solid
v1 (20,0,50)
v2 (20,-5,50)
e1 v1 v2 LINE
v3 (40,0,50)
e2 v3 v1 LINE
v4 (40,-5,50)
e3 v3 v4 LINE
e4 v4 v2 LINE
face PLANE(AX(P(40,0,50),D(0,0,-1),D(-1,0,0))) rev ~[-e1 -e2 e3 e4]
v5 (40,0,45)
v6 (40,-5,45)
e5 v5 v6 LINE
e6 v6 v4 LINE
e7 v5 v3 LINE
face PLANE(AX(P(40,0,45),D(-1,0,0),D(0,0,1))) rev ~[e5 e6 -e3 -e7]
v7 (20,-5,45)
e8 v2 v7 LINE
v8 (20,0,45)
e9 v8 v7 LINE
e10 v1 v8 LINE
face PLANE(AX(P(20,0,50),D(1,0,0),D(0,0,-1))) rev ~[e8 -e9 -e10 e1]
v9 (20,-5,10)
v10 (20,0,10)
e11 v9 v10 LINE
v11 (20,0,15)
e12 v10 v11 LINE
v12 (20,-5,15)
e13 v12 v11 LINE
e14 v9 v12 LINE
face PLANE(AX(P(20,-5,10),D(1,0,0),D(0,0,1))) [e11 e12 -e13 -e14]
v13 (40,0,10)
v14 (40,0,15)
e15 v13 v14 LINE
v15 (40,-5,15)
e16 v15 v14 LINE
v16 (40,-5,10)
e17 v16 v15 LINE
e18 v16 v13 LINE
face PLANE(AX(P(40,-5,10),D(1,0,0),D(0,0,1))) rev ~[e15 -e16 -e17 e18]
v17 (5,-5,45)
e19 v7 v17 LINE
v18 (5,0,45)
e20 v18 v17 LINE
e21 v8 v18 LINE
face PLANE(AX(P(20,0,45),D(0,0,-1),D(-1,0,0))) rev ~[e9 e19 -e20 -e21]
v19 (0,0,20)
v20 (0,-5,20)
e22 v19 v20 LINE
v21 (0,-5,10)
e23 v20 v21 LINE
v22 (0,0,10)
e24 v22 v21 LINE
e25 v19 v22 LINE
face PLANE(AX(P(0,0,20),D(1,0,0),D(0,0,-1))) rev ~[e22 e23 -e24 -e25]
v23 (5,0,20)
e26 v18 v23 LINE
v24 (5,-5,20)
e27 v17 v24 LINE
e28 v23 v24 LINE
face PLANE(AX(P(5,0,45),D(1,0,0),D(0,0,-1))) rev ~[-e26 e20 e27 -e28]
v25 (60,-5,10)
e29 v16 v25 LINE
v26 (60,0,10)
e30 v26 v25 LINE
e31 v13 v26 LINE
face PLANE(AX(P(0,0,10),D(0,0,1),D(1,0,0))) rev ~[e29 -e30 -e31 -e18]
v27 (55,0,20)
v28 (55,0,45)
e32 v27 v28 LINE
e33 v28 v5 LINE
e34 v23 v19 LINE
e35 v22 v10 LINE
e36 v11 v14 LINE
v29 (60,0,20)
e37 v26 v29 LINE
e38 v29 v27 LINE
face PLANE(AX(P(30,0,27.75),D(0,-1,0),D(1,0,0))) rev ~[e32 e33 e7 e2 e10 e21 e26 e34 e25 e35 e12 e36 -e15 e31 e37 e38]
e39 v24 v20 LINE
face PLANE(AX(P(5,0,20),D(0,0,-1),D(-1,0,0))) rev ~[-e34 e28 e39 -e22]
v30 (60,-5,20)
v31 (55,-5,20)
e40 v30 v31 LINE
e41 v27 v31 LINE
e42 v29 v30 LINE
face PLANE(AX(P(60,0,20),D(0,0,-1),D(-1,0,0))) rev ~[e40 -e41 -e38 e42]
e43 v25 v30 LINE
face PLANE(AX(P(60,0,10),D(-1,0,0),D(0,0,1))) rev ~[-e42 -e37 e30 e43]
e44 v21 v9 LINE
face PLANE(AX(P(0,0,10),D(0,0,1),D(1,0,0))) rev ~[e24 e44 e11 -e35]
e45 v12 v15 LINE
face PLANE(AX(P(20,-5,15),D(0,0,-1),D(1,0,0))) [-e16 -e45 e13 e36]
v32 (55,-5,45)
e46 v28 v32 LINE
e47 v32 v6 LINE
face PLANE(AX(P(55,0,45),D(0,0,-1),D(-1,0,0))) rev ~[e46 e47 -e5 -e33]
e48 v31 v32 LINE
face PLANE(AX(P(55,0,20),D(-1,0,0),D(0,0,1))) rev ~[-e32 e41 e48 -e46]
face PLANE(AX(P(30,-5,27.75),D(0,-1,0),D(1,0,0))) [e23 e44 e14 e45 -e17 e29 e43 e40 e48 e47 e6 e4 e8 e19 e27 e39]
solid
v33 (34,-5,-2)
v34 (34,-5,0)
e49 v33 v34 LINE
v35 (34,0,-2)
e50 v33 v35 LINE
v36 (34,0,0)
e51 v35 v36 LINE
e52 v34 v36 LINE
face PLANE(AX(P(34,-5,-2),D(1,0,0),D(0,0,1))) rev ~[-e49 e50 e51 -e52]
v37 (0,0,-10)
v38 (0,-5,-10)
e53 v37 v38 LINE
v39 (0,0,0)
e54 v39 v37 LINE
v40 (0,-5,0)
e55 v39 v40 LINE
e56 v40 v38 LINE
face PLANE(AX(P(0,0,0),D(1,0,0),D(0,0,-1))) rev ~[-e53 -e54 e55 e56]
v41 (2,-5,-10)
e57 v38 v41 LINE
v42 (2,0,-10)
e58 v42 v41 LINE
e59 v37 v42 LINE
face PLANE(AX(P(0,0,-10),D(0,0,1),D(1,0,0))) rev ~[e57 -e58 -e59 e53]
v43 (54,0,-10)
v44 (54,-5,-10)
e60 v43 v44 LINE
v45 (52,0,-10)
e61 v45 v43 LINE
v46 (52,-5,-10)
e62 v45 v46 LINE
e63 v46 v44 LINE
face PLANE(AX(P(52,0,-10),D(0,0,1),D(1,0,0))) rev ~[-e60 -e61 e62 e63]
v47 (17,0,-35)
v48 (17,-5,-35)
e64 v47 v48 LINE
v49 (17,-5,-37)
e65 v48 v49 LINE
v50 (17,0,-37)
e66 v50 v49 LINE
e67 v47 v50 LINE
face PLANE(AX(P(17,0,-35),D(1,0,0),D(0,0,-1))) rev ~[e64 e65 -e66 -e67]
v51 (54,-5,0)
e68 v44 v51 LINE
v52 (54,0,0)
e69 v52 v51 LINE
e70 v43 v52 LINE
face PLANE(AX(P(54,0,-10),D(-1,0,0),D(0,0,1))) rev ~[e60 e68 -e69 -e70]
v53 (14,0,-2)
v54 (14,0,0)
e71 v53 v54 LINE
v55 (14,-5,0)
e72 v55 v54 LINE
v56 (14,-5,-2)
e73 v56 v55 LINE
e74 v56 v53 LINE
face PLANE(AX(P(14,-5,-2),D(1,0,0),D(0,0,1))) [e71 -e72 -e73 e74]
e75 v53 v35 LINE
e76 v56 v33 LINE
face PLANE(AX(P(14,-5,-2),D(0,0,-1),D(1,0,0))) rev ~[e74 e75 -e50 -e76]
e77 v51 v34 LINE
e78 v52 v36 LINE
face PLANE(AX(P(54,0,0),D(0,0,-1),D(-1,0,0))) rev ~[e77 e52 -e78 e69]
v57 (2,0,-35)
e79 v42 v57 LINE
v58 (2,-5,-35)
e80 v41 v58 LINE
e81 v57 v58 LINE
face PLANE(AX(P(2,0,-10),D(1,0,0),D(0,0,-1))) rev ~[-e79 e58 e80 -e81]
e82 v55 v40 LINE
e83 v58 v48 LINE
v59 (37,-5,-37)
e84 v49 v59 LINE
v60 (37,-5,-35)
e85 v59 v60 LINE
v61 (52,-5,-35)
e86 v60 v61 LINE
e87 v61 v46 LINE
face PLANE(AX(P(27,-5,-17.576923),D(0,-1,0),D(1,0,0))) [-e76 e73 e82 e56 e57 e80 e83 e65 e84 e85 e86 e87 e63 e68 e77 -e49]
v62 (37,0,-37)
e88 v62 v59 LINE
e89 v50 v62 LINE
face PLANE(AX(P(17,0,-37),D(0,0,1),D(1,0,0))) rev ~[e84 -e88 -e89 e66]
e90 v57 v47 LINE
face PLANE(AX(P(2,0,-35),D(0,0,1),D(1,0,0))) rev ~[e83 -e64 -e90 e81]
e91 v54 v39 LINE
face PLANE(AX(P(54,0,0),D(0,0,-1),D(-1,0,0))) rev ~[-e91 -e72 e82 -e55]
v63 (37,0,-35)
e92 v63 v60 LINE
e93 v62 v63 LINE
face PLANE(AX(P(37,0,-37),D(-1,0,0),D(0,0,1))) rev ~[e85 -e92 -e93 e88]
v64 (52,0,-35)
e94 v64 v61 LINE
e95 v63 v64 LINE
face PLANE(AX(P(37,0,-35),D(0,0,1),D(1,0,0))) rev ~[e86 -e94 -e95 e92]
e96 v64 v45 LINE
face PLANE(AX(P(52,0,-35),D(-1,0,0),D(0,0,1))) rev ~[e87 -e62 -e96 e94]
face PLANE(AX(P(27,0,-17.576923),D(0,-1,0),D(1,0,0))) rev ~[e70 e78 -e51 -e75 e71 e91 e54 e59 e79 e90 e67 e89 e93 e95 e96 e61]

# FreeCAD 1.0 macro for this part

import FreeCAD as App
import Part
import Sketcher
Q = App.Units.Quantity

doc = App.newDocument("Part")
params = doc.addObject("Spreadsheet::Sheet", "Params")
for row, (alias, value) in enumerate([
    ("sketch1_width", "60 mm"),
    ("sketch1_width2", "5 mm"),
    ("sketch1_width3", "15 mm"),
    ("sketch1_width4", "54 mm"),
    ("sketch1_height", "10 mm"),
    ("pad1_length", "5 mm"),
    ("sketch2_width", "20 mm"),
    ("sketch2_height", "2 mm"),
    ("pocket1_length", "5 mm"),
    ("sketch3_width", "20 mm"),
    ("sketch3_height", "5 mm"),
    ("pocket2_length", "5 mm"),
], start=1):
    params.set(f"A{row}", alias)
    params.set(f"B{row}", "=" + value)
    params.setAlias(f"B{row}", alias)

body = doc.addObject("PartDesign::Body", "Body")
body.AllowCompound = True

sketch1 = body.newObject("Sketcher::SketchObject", "Sketch")
sketch1.AttachmentSupport = (doc.getObject("XZ_Plane"), [""])
sketch1.MapMode = "FlatFace"
sketch1.addGeometry(Part.LineSegment(App.Vector(0, 20, 0), App.Vector(0, 10, 0)), False)
sketch1.addGeometry(Part.LineSegment(App.Vector(0, 10, 0), App.Vector(60, 10, 0)), False)
sketch1.addGeometry(Part.LineSegment(App.Vector(60, 10, 0), App.Vector(60, 20, 0)), False)
sketch1.addGeometry(Part.LineSegment(App.Vector(60, 20, 0), App.Vector(55, 20, 0)), False)
sketch1.addGeometry(Part.LineSegment(App.Vector(55, 20, 0), App.Vector(55, 45, 0)), False)
sketch1.addGeometry(Part.LineSegment(App.Vector(55, 45, 0), App.Vector(40, 45, 0)), False)
sketch1.addGeometry(Part.LineSegment(App.Vector(40, 45, 0), App.Vector(40, 50, 0)), False)
sketch1.addGeometry(Part.LineSegment(App.Vector(40, 50, 0), App.Vector(20, 50, 0)), False)
sketch1.addGeometry(Part.LineSegment(App.Vector(20, 50, 0), App.Vector(20, 45, 0)), False)
sketch1.addGeometry(Part.LineSegment(App.Vector(20, 45, 0), App.Vector(5, 45, 0)), False)
sketch1.addGeometry(Part.LineSegment(App.Vector(5, 45, 0), App.Vector(5, 20, 0)), False)
sketch1.addGeometry(Part.LineSegment(App.Vector(5, 20, 0), App.Vector(0, 20, 0)), False)
sketch1.addGeometry(Part.LineSegment(App.Vector(54, 0, 0), App.Vector(0, 0, 0)), False)
sketch1.addGeometry(Part.LineSegment(App.Vector(0, 0, 0), App.Vector(0, -10, 0)), False)
sketch1.addGeometry(Part.LineSegment(App.Vector(0, -10, 0), App.Vector(2, -10, 0)), False)
sketch1.addGeometry(Part.LineSegment(App.Vector(2, -10, 0), App.Vector(2, -35, 0)), False)
sketch1.addGeometry(Part.LineSegment(App.Vector(2, -35, 0), App.Vector(17, -35, 0)), False)
sketch1.addGeometry(Part.LineSegment(App.Vector(17, -35, 0), App.Vector(17, -37, 0)), False)
sketch1.addGeometry(Part.LineSegment(App.Vector(17, -37, 0), App.Vector(37, -37, 0)), False)
sketch1.addGeometry(Part.LineSegment(App.Vector(37, -37, 0), App.Vector(37, -35, 0)), False)
sketch1.addGeometry(Part.LineSegment(App.Vector(37, -35, 0), App.Vector(52, -35, 0)), False)
sketch1.addGeometry(Part.LineSegment(App.Vector(52, -35, 0), App.Vector(52, -10, 0)), False)
sketch1.addGeometry(Part.LineSegment(App.Vector(52, -10, 0), App.Vector(54, -10, 0)), False)
sketch1.addGeometry(Part.LineSegment(App.Vector(54, -10, 0), App.Vector(54, 0, 0)), False)
sketch1.addConstraint(Sketcher.Constraint("Coincident", 0, 2, 1, 1))
sketch1.addConstraint(Sketcher.Constraint("Coincident", 1, 2, 2, 1))
sketch1.addConstraint(Sketcher.Constraint("Coincident", 2, 2, 3, 1))
sketch1.addConstraint(Sketcher.Constraint("Coincident", 3, 2, 4, 1))
sketch1.addConstraint(Sketcher.Constraint("Coincident", 4, 2, 5, 1))
sketch1.addConstraint(Sketcher.Constraint("Coincident", 5, 2, 6, 1))
sketch1.addConstraint(Sketcher.Constraint("Coincident", 6, 2, 7, 1))
sketch1.addConstraint(Sketcher.Constraint("Coincident", 7, 2, 8, 1))
sketch1.addConstraint(Sketcher.Constraint("Coincident", 8, 2, 9, 1))
sketch1.addConstraint(Sketcher.Constraint("Coincident", 9, 2, 10, 1))
sketch1.addConstraint(Sketcher.Constraint("Coincident", 10, 2, 11, 1))
sketch1.addConstraint(Sketcher.Constraint("Coincident", 11, 2, 0, 1))
sketch1.addConstraint(Sketcher.Constraint("Coincident", 12, 2, 13, 1))
sketch1.addConstraint(Sketcher.Constraint("Coincident", 13, 2, 14, 1))
sketch1.addConstraint(Sketcher.Constraint("Coincident", 14, 2, 15, 1))
sketch1.addConstraint(Sketcher.Constraint("Coincident", 15, 2, 16, 1))
sketch1.addConstraint(Sketcher.Constraint("Coincident", 16, 2, 17, 1))
sketch1.addConstraint(Sketcher.Constraint("Coincident", 17, 2, 18, 1))
sketch1.addConstraint(Sketcher.Constraint("Coincident", 18, 2, 19, 1))
sketch1.addConstraint(Sketcher.Constraint("Coincident", 19, 2, 20, 1))
sketch1.addConstraint(Sketcher.Constraint("Coincident", 20, 2, 21, 1))
sketch1.addConstraint(Sketcher.Constraint("Coincident", 21, 2, 22, 1))
sketch1.addConstraint(Sketcher.Constraint("Coincident", 22, 2, 23, 1))
sketch1.addConstraint(Sketcher.Constraint("Coincident", 23, 2, 12, 1))
sketch1.addConstraint(Sketcher.Constraint("Vertical", 0))
sketch1.addConstraint(Sketcher.Constraint("Horizontal", 1))
sketch1.addConstraint(Sketcher.Constraint("Vertical", 2))
sketch1.addConstraint(Sketcher.Constraint("Horizontal", 3))
sketch1.addConstraint(Sketcher.Constraint("Vertical", 4))
sketch1.addConstraint(Sketcher.Constraint("Horizontal", 5))
sketch1.addConstraint(Sketcher.Constraint("Vertical", 6))
sketch1.addConstraint(Sketcher.Constraint("Horizontal", 7))
sketch1.addConstraint(Sketcher.Constraint("Vertical", 8))
sketch1.addConstraint(Sketcher.Constraint("Horizontal", 9))
sketch1.addConstraint(Sketcher.Constraint("Vertical", 10))
sketch1.addConstraint(Sketcher.Constraint("Horizontal", 11))
sketch1.addConstraint(Sketcher.Constraint("Horizontal", 12))
sketch1.addConstraint(Sketcher.Constraint("Vertical", 13))
sketch1.addConstraint(Sketcher.Constraint("Horizontal", 14))
sketch1.addConstraint(Sketcher.Constraint("Vertical", 15))
sketch1.addConstraint(Sketcher.Constraint("Horizontal", 16))
sketch1.addConstraint(Sketcher.Constraint("Vertical", 17))
sketch1.addConstraint(Sketcher.Constraint("Horizontal", 18))
sketch1.addConstraint(Sketcher.Constraint("Vertical", 19))
sketch1.addConstraint(Sketcher.Constraint("Horizontal", 20))
sketch1.addConstraint(Sketcher.Constraint("Vertical", 21))
sketch1.addConstraint(Sketcher.Constraint("Horizontal", 22))
sketch1.addConstraint(Sketcher.Constraint("Vertical", 23))
sketch1.addConstraint(Sketcher.Constraint("Coincident", 12, 2, -1, 1))
sketch1.addConstraint(Sketcher.Constraint("Symmetric", 0, 2, 13, 2, -1, 1))
sketch1.addConstraint(Sketcher.Constraint("Horizontal", 5, 2, 8, 2))
sketch1.addConstraint(Sketcher.Constraint("Horizontal", 3, 2, 10, 2))
sketch1.addConstraint(Sketcher.Constraint("Horizontal", 16, 2, 19, 2))
sketch1.addConstraint(Sketcher.Constraint("Horizontal", 14, 2, 21, 2))
sketch1.addConstraint(Sketcher.Constraint("Equal", 5, 9))
sketch1.addConstraint(Sketcher.Constraint("Equal", 3, 11))
sketch1.addConstraint(Sketcher.Constraint("Equal", 9, 16))
sketch1.addConstraint(Sketcher.Constraint("Equal", 7, 18))
sketch1.addConstraint(Sketcher.Constraint("Equal", 16, 20))
sketch1.addConstraint(Sketcher.Constraint("Equal", 14, 22))
sketch1.addConstraint(Sketcher.Constraint("Equal", 11, 6))
sketch1.addConstraint(Sketcher.Constraint("Equal", 2, 13))
sketch1.addConstraint(Sketcher.Constraint("Equal", 10, 15))
sketch1.addConstraint(Sketcher.Constraint("Equal", 22, 17))
sketch1.addConstraint(Sketcher.Constraint("DistanceX", 1, 1, 1, 2, Q("60 mm")))
sketch1.addConstraint(Sketcher.Constraint("DistanceX", 3, 2, 3, 1, Q("5 mm")))
sketch1.addConstraint(Sketcher.Constraint("DistanceX", 5, 2, 5, 1, Q("15 mm")))
sketch1.addConstraint(Sketcher.Constraint("DistanceX", 12, 2, 12, 1, Q("54 mm")))
sketch1.addConstraint(Sketcher.Constraint("DistanceY", 0, 2, 0, 1, Q("10 mm")))
sketch1.addConstraint(Sketcher.Constraint("DistanceY", 4, 1, 4, 2, Q("25 mm")))
sketch1.setExpression("Constraints[64]", "Params.sketch1_width")
sketch1.setExpression("Constraints[65]", "Params.sketch1_width2")
sketch1.setExpression("Constraints[66]", "Params.sketch1_width3")
sketch1.setExpression("Constraints[67]", "Params.sketch1_width4")
sketch1.setExpression("Constraints[68]", "Params.sketch1_height")
pad1 = body.newObject("PartDesign::Pad", "Pad")
pad1.Profile = sketch1
pad1.setExpression("Length", "Params.pad1_length")

sketch2 = body.newObject("Sketcher::SketchObject", "Sketch001")
sketch2.AttachmentSupport = (doc.getObject("XZ_Plane"), [""])
sketch2.MapMode = "FlatFace"
sketch2.AttachmentOffset = App.Placement(App.Vector(0, 0, 5), App.Rotation())
sketch2.addGeometry(Part.LineSegment(App.Vector(14, 0, 0), App.Vector(14, -2, 0)), False)
sketch2.addGeometry(Part.LineSegment(App.Vector(14, -2, 0), App.Vector(34, -2, 0)), False)
sketch2.addGeometry(Part.LineSegment(App.Vector(34, -2, 0), App.Vector(34, 0, 0)), False)
sketch2.addGeometry(Part.LineSegment(App.Vector(34, 0, 0), App.Vector(14, 0, 0)), False)
sketch2.addConstraint(Sketcher.Constraint("Coincident", 0, 2, 1, 1))
sketch2.addConstraint(Sketcher.Constraint("Coincident", 1, 2, 2, 1))
sketch2.addConstraint(Sketcher.Constraint("Coincident", 2, 2, 3, 1))
sketch2.addConstraint(Sketcher.Constraint("Coincident", 3, 2, 0, 1))
sketch2.addConstraint(Sketcher.Constraint("Vertical", 0))
sketch2.addConstraint(Sketcher.Constraint("Horizontal", 1))
sketch2.addConstraint(Sketcher.Constraint("Vertical", 2))
sketch2.addConstraint(Sketcher.Constraint("Horizontal", 3))
sketch2.addConstraint(Sketcher.Constraint("PointOnObject", 2, 2, -1))
sketch2.addConstraint(Sketcher.Constraint("DistanceX", 1, 1, 1, 2, Q("20 mm")))
sketch2.addConstraint(Sketcher.Constraint("DistanceY", 0, 2, 0, 1, Q("2 mm")))
sketch2.addConstraint(Sketcher.Constraint("DistanceX", -1, 1, 0, 2, Q("14 mm")))
sketch2.setExpression("Constraints[9]", "Params.sketch2_width")
sketch2.setExpression("Constraints[10]", "Params.sketch2_height")
pocket1 = body.newObject("PartDesign::Pocket", "Pocket")
pocket1.Profile = sketch2
pocket1.setExpression("Length", "Params.pocket1_length")

sketch3 = body.newObject("Sketcher::SketchObject", "Sketch002")
sketch3.AttachmentSupport = (doc.getObject("XZ_Plane"), [""])
sketch3.MapMode = "FlatFace"
sketch3.AttachmentOffset = App.Placement(App.Vector(0, 0, 5), App.Rotation())
sketch3.addGeometry(Part.LineSegment(App.Vector(20, 15, 0), App.Vector(20, 10, 0)), False)
sketch3.addGeometry(Part.LineSegment(App.Vector(20, 10, 0), App.Vector(40, 10, 0)), False)
sketch3.addGeometry(Part.LineSegment(App.Vector(40, 10, 0), App.Vector(40, 15, 0)), False)
sketch3.addGeometry(Part.LineSegment(App.Vector(40, 15, 0), App.Vector(20, 15, 0)), False)
sketch3.addConstraint(Sketcher.Constraint("Coincident", 0, 2, 1, 1))
sketch3.addConstraint(Sketcher.Constraint("Coincident", 1, 2, 2, 1))
sketch3.addConstraint(Sketcher.Constraint("Coincident", 2, 2, 3, 1))
sketch3.addConstraint(Sketcher.Constraint("Coincident", 3, 2, 0, 1))
sketch3.addConstraint(Sketcher.Constraint("Vertical", 0))
sketch3.addConstraint(Sketcher.Constraint("Horizontal", 1))
sketch3.addConstraint(Sketcher.Constraint("Vertical", 2))
sketch3.addConstraint(Sketcher.Constraint("Horizontal", 3))
sketch3.addConstraint(Sketcher.Constraint("DistanceX", 1, 1, 1, 2, Q("20 mm")))
sketch3.addConstraint(Sketcher.Constraint("DistanceY", 0, 2, 0, 1, Q("5 mm")))
sketch3.addConstraint(Sketcher.Constraint("DistanceX", -1, 1, 0, 2, Q("20 mm")))
sketch3.addConstraint(Sketcher.Constraint("DistanceY", -1, 1, 0, 2, Q("10 mm")))
sketch3.setExpression("Constraints[8]", "Params.sketch3_width")
sketch3.setExpression("Constraints[9]", "Params.sketch3_height")
pocket2 = body.newObject("PartDesign::Pocket", "Pocket001")
pocket2.Profile = sketch3
pocket2.setExpression("Length", "Params.pocket2_length")

doc.recompute()
